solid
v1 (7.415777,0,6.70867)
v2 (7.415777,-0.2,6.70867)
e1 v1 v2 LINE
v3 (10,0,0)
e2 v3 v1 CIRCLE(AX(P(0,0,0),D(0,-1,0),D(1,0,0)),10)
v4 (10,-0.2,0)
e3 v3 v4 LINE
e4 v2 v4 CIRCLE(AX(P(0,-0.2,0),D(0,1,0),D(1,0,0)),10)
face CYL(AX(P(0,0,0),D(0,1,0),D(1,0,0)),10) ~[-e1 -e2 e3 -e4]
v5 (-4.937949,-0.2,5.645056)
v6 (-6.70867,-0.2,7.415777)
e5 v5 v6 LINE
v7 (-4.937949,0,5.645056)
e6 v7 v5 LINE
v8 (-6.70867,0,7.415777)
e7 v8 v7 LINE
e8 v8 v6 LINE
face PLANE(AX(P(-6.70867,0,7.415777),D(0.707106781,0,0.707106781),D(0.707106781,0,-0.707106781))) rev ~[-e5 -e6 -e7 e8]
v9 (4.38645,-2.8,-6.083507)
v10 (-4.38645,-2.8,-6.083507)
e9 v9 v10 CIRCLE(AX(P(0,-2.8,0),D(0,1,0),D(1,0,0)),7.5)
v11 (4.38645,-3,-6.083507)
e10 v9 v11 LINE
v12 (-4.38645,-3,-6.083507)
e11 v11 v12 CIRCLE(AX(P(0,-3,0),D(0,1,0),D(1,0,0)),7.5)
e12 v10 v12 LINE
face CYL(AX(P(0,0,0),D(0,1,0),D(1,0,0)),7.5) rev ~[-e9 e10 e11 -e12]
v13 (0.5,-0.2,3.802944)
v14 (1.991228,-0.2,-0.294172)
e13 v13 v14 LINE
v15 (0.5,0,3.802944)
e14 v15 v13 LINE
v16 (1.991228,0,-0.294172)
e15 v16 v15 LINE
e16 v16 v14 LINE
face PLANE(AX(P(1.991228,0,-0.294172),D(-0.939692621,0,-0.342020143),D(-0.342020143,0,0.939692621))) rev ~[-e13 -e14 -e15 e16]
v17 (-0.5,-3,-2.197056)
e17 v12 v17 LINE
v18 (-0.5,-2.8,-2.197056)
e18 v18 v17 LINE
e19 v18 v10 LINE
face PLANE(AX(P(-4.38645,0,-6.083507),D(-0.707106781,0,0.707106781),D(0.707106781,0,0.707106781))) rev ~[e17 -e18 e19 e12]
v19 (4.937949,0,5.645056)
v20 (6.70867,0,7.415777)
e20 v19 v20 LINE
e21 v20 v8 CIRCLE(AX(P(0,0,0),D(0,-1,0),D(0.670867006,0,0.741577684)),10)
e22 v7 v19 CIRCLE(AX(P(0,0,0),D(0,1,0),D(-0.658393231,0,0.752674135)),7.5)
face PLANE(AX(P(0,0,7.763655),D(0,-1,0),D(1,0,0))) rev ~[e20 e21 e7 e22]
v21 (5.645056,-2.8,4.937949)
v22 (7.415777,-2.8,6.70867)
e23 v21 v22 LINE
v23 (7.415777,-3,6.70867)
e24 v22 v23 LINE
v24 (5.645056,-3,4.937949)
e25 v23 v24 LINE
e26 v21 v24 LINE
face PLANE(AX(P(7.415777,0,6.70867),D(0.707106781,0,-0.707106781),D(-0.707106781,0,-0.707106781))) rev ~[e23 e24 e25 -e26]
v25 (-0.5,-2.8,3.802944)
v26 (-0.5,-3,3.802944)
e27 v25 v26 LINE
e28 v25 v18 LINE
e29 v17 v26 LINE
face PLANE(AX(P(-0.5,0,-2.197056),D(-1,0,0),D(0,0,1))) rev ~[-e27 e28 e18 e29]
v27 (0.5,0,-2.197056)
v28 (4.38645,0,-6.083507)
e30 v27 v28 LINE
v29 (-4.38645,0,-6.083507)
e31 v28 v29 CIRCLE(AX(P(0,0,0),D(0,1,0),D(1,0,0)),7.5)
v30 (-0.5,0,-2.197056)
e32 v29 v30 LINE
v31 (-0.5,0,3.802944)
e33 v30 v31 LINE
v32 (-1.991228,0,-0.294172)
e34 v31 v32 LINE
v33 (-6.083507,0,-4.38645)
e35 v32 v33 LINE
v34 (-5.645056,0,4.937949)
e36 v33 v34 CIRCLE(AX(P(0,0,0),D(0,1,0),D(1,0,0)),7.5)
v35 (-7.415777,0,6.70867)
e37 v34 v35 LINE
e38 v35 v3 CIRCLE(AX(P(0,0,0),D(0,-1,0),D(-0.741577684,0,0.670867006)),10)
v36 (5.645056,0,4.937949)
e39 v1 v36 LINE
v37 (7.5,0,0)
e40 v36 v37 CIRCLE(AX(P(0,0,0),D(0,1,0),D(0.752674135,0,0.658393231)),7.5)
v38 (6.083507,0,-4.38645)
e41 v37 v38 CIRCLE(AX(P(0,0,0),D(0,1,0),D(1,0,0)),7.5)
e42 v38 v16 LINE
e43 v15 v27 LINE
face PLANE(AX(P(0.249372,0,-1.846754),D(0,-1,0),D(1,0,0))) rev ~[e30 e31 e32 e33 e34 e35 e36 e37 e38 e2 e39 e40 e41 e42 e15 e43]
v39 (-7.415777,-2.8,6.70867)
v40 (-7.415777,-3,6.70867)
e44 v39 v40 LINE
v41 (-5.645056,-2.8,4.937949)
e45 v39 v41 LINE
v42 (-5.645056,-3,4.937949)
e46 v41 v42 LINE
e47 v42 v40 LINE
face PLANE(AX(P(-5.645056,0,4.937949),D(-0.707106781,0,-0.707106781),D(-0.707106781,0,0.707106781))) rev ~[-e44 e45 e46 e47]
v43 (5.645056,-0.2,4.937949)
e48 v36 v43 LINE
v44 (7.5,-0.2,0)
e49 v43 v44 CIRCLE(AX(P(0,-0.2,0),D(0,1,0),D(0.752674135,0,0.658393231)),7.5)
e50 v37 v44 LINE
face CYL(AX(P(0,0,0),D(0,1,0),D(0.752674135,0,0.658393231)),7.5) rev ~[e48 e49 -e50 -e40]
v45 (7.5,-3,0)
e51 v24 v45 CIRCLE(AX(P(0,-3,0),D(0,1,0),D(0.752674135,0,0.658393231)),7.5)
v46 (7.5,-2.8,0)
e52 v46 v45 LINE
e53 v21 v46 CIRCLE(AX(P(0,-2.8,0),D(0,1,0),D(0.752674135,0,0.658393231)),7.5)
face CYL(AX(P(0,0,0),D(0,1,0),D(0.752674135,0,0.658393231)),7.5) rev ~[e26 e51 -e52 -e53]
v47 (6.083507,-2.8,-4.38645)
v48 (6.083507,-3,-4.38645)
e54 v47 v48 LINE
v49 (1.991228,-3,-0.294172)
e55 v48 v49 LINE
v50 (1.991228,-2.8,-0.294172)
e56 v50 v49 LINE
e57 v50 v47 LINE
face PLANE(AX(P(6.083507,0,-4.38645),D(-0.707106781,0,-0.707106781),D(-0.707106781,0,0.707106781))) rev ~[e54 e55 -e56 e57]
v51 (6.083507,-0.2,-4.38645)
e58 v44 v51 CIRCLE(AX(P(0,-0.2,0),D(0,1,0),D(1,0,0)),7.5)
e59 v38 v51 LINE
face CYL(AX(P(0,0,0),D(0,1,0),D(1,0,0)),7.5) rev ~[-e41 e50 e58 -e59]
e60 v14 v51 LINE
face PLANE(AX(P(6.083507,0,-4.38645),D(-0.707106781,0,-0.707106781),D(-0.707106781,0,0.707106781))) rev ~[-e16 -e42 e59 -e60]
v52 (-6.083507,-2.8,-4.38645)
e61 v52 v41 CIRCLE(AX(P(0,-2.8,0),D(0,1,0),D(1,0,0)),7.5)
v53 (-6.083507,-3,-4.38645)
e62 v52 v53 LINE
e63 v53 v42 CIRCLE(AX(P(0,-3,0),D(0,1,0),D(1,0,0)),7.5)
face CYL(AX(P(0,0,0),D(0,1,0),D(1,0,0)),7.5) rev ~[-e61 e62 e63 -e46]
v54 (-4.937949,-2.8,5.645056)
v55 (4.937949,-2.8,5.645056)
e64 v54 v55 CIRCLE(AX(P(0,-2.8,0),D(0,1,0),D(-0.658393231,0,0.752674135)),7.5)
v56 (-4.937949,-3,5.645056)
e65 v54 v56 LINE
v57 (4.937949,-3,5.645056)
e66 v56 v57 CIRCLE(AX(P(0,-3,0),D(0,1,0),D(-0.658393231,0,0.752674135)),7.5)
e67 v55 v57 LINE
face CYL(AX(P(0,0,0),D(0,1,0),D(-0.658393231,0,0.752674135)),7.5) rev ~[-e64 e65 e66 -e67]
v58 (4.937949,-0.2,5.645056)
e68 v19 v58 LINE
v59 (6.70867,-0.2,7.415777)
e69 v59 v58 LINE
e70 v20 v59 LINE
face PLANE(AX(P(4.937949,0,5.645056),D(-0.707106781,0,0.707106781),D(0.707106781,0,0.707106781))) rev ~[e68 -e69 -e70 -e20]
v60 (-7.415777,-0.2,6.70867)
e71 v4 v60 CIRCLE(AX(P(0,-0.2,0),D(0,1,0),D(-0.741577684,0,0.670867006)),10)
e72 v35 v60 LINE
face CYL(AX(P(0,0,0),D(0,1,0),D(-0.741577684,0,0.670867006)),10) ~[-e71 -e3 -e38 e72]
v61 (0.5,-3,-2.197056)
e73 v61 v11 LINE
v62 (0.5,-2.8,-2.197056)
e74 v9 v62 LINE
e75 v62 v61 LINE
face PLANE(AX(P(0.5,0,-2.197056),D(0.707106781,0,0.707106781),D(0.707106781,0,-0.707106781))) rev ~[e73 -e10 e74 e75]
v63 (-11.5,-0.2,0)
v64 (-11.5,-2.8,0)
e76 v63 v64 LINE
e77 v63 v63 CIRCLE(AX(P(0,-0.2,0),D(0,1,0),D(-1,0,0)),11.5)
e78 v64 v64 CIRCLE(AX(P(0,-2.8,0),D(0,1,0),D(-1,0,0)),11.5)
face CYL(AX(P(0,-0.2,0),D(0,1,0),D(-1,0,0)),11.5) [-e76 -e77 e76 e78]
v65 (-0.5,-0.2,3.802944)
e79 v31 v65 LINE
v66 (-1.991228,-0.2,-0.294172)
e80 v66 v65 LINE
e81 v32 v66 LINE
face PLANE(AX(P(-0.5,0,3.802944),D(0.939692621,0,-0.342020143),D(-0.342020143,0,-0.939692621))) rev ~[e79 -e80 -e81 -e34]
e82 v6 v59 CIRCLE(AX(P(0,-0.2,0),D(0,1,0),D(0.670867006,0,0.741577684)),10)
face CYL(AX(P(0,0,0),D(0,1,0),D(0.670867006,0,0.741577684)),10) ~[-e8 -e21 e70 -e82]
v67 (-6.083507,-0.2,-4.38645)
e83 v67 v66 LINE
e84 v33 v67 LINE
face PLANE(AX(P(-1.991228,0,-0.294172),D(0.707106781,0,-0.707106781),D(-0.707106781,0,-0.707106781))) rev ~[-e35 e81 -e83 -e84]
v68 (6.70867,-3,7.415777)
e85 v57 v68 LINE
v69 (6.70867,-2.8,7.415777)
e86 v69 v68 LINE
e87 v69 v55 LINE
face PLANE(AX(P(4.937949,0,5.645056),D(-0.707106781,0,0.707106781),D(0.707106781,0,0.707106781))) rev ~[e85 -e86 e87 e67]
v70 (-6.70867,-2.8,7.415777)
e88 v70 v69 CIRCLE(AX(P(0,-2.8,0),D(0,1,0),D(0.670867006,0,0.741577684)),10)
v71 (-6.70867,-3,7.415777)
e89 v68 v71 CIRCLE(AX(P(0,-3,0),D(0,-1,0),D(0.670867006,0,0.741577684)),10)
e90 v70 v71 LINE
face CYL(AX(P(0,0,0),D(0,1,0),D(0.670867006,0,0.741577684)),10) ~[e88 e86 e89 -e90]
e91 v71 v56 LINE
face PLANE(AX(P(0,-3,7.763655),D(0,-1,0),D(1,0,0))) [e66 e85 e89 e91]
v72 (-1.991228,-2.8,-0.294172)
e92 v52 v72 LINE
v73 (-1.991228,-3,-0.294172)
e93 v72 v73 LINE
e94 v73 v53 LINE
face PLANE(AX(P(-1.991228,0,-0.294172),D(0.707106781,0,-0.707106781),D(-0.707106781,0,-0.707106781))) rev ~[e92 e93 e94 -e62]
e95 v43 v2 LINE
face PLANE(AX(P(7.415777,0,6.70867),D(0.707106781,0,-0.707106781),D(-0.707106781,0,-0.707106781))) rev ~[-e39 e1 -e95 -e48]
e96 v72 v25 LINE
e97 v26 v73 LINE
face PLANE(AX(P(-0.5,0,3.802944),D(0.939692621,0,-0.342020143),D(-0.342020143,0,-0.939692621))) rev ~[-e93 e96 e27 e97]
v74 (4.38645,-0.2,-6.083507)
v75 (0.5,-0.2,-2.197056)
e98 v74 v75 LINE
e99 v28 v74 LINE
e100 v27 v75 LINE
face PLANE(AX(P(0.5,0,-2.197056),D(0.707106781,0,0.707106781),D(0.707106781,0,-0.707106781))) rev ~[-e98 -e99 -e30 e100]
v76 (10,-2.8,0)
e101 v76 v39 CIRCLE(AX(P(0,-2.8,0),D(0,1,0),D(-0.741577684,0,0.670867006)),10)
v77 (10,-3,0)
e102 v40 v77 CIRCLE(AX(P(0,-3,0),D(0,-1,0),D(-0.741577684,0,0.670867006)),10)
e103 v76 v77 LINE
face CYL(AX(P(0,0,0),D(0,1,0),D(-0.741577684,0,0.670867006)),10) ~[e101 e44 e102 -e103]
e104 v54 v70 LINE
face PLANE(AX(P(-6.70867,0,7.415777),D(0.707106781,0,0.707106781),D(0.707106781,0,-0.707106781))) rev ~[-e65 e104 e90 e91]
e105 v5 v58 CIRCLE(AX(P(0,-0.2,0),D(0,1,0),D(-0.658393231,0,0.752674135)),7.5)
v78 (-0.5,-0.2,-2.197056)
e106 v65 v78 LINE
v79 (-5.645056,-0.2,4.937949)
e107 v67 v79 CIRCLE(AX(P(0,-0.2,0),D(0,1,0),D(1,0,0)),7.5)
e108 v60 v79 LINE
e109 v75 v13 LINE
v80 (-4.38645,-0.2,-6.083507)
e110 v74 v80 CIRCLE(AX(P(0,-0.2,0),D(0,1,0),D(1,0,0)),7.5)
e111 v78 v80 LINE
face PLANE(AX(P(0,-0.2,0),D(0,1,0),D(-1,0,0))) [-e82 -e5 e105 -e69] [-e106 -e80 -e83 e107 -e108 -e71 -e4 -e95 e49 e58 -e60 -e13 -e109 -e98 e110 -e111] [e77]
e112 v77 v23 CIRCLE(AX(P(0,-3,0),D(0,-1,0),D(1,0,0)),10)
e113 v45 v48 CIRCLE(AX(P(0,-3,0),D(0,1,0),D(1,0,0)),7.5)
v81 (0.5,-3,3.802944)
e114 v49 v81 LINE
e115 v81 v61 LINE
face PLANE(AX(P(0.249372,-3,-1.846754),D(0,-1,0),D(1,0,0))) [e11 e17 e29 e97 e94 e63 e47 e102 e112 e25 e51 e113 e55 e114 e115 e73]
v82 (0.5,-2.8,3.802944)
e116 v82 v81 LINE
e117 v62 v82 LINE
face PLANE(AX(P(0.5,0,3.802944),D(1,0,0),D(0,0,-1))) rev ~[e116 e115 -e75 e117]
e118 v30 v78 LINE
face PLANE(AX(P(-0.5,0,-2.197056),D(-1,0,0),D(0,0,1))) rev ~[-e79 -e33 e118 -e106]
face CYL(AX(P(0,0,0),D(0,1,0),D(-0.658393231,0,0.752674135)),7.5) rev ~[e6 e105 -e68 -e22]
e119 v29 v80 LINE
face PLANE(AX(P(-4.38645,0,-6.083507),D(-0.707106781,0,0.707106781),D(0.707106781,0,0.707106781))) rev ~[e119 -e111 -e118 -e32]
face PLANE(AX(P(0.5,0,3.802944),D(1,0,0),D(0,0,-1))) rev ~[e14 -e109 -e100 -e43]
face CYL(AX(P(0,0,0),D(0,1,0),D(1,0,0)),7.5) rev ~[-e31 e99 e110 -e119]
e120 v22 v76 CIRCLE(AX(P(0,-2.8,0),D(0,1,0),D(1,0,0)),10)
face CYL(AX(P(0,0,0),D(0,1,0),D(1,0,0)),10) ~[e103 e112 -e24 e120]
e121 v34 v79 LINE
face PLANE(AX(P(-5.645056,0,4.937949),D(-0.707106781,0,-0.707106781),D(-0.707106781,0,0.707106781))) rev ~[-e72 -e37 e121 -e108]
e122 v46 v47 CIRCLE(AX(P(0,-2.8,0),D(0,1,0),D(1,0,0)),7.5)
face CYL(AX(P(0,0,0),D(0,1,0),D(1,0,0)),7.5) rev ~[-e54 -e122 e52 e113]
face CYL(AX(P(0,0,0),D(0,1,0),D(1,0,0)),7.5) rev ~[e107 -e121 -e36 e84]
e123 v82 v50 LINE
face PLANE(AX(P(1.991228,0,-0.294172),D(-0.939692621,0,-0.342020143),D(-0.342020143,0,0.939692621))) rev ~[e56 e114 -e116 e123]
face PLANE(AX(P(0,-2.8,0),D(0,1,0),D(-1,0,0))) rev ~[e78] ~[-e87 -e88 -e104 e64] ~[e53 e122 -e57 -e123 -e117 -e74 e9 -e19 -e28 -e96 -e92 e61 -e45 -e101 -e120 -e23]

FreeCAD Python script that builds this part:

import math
import FreeCAD as App
import Part
import Sketcher

V = App.Vector
Q = App.Units.Quantity

doc = App.newDocument("Part")
params = doc.addObject("Spreadsheet::Sheet", "Params")
for row, (alias, value) in enumerate([
    ("sketch1_radius", "10 mm"),
    ("sketch1_radius2", "7.5 mm"),
    ("pad1_length", "3 mm"),
    ("sketch2_radius", "7.5 mm"),
    ("sketch2_height", "6 mm"),
    ("pad2_length", "3 mm"),
    ("sketch3_radius", "10 mm"),
    ("sketch3_radius2", "7.5 mm"),
    ("pad3_length", "3 mm"),
    ("sketch4_diameter", "23 mm"),
    ("pad4_length", "2.6 mm"),
], start=1):
    params.set(f"A{row}", alias)
    params.set(f"B{row}", "=" + value)
    params.setAlias(f"B{row}", alias)

body = doc.addObject("PartDesign::Body", "Body")

# Sketch on XZ plane
sketch1 = body.newObject("Sketcher::SketchObject", "Sketch")
sketch1.AttachmentSupport = (doc.getObject("XZ_Plane"), [""])
sketch1.MapMode = "FlatFace"
sketch1.addGeometry(Part.ArcOfCircle(Part.Circle(V(0, 0, 0), V(0, 0, 1), 10), math.radians(138), math.radians(360)), False)
sketch1.addGeometry(Part.ArcOfCircle(Part.Circle(V(0, 0, 0), V(0, 0, 1), 10), math.radians(0), math.radians(42)), False)
sketch1.addGeometry(Part.LineSegment(V(7.4, 6.7, 0), V(5.6, 4.9, 0)), False)
sketch1.addGeometry(Part.ArcOfCircle(Part.Circle(V(0, 0, 0), V(0, 0, 1), 7.5), math.radians(0), math.radians(41)), False)
sketch1.addGeometry(Part.ArcOfCircle(Part.Circle(V(0, 0, 0), V(0, 0, 1), 7.5), math.radians(139), math.radians(360)), False)
sketch1.addGeometry(Part.LineSegment(V(-5.6, 4.9, 0), V(-7.4, 6.7, 0)), False)
sketch1.addConstraint(Sketcher.Constraint("Tangent", 0, 2, 1, 1))
sketch1.addConstraint(Sketcher.Constraint("Coincident", 1, 2, 2, 1))
sketch1.addConstraint(Sketcher.Constraint("Coincident", 2, 2, 3, 2))
sketch1.addConstraint(Sketcher.Constraint("Tangent", 3, 1, 4, 2))
sketch1.addConstraint(Sketcher.Constraint("Coincident", 4, 1, 5, 1))
sketch1.addConstraint(Sketcher.Constraint("Coincident", 5, 2, 0, 1))
sketch1.addConstraint(Sketcher.Constraint("Coincident", 0, 3, -1, 1))
sketch1.addConstraint(Sketcher.Constraint("Coincident", 3, 3, -1, 1))
sketch1.addConstraint(Sketcher.Constraint("Equal", 0, 1))
sketch1.addConstraint(Sketcher.Constraint("Equal", 3, 4))
sketch1.addConstraint(Sketcher.Constraint("PointOnObject", 0, 2, -1))
sketch1.addConstraint(Sketcher.Constraint("PointOnObject", 3, 1, -1))
sketch1.addConstraint(Sketcher.Constraint("Perpendicular", 2, 5))
sketch1.addConstraint(Sketcher.Constraint("Horizontal", 2, 2, 4, 1))
sketch1.addConstraint(Sketcher.Constraint("Horizontal", 1, 2, 5, 2))
sketch1.addConstraint(Sketcher.Constraint("Radius", 0, Q("10 mm")))
sketch1.addConstraint(Sketcher.Constraint("Radius", 3, Q("7.5 mm")))
sketch1.addConstraint(Sketcher.Constraint("DistanceY", -1, 1, 1, 2, Q("6.70867 mm")))
sketch1.setExpression("Constraints[15]", "Params.sketch1_radius")
sketch1.setExpression("Constraints[16]", "Params.sketch1_radius2")
pad1 = body.newObject("PartDesign::Pad", "Pad")
pad1.Profile = sketch1
pad1.setExpression("Length", "Params.pad1_length")

# Sketch on XZ plane
sketch2 = body.newObject("Sketcher::SketchObject", "Sketch001")
sketch2.AttachmentSupport = (doc.getObject("XZ_Plane"), [""])
sketch2.MapMode = "FlatFace"
sketch2.addGeometry(Part.LineSegment(V(-2, -0.3, 0), V(-6.1, -4.4, 0)), False)
sketch2.addGeometry(Part.ArcOfCircle(Part.Circle(V(0, 0, 0), V(0, 0, 1), 7.5), math.radians(-144.21), math.radians(-135)), False)
sketch2.addGeometry(Part.ArcOfCircle(Part.Circle(V(0, 0, 0), V(0, 0, 1), 7.5), math.radians(-135), math.radians(-125.79)), False)
sketch2.addGeometry(Part.LineSegment(V(-4.4, -6.1, 0), V(-0.5, -2.2, 0)), False)
sketch2.addGeometry(Part.LineSegment(V(-0.5, -2.2, 0), V(-0.5, 3.8, 0)), False)
sketch2.addGeometry(Part.LineSegment(V(-0.5, 3.8, 0), V(-2, -0.3, 0)), False)
sketch2.addGeometry(Part.ArcOfCircle(Part.Circle(V(0, 0, 0), V(0, 0, 1), 7.5), math.radians(-45), math.radians(-35.79)), False)
sketch2.addGeometry(Part.LineSegment(V(6.1, -4.4, 0), V(2, -0.3, 0)), False)
sketch2.addGeometry(Part.LineSegment(V(2, -0.3, 0), V(0.5, 3.8, 0)), False)
sketch2.addGeometry(Part.LineSegment(V(0.5, 3.8, 0), V(0.5, -2.2, 0)), False)
sketch2.addGeometry(Part.LineSegment(V(0.5, -2.2, 0), V(4.4, -6.1, 0)), False)
sketch2.addGeometry(Part.ArcOfCircle(Part.Circle(V(0, 0, 0), V(0, 0, 1), 7.5), math.radians(-54.21), math.radians(-45)), False)
sketch2.addConstraint(Sketcher.Constraint("Coincident", 0, 2, 1, 1))
sketch2.addConstraint(Sketcher.Constraint("Tangent", 1, 2, 2, 1))
sketch2.addConstraint(Sketcher.Constraint("Coincident", 2, 2, 3, 1))
sketch2.addConstraint(Sketcher.Constraint("Coincident", 3, 2, 4, 1))
sketch2.addConstraint(Sketcher.Constraint("Coincident", 4, 2, 5, 1))
sketch2.addConstraint(Sketcher.Constraint("Coincident", 5, 2, 0, 1))
sketch2.addConstraint(Sketcher.Constraint("Coincident", 6, 2, 7, 1))
sketch2.addConstraint(Sketcher.Constraint("Coincident", 7, 2, 8, 1))
sketch2.addConstraint(Sketcher.Constraint("Coincident", 8, 2, 9, 1))
sketch2.addConstraint(Sketcher.Constraint("Coincident", 9, 2, 10, 1))
sketch2.addConstraint(Sketcher.Constraint("Coincident", 10, 2, 11, 1))
sketch2.addConstraint(Sketcher.Constraint("Tangent", 11, 2, 6, 1))
sketch2.addConstraint(Sketcher.Constraint("Vertical", 4))
sketch2.addConstraint(Sketcher.Constraint("Vertical", 9))
sketch2.addConstraint(Sketcher.Constraint("Coincident", 1, 3, -1, 1))
sketch2.addConstraint(Sketcher.Constraint("Coincident", 6, 3, -1, 1))
sketch2.addConstraint(Sketcher.Constraint("Equal", 1, 2))
sketch2.addConstraint(Sketcher.Constraint("Equal", 2, 6))
sketch2.addConstraint(Sketcher.Constraint("Equal", 6, 11))
sketch2.addConstraint(Sketcher.Constraint("Symmetric", 5, 2, 7, 2, -2))
sketch2.addConstraint(Sketcher.Constraint("Symmetric", 4, 2, 8, 2, -2))
sketch2.addConstraint(Sketcher.Constraint("Parallel", 0, 3))
sketch2.addConstraint(Sketcher.Constraint("Perpendicular", 3, 7))
sketch2.addConstraint(Sketcher.Constraint("Parallel", 7, 10))
sketch2.addConstraint(Sketcher.Constraint("Horizontal", 0, 2, 6, 2))
sketch2.addConstraint(Sketcher.Constraint("Horizontal", 3, 2, 9, 2))
sketch2.addConstraint(Sketcher.Constraint("Horizontal", 1, 2, 11, 2))
sketch2.addConstraint(Sketcher.Constraint("Radius", 1, Q("7.5 mm")))
sketch2.addConstraint(Sketcher.Constraint("DistanceY", 4, 1, 4, 2, Q("6 mm")))
sketch2.addConstraint(Sketcher.Constraint("Angle", 5, Q("-110 deg")))
sketch2.addConstraint(Sketcher.Constraint("DistanceX", 4, 2, 8, 2, Q("1 mm")))
sketch2.addConstraint(Sketcher.Constraint("DistanceX", 1, 2, -1, 1, Q("5.303301 mm")))
sketch2.addConstraint(Sketcher.Constraint("Distance", 3, Q("5.496271 mm")))
sketch2.addConstraint(Sketcher.Constraint("Distance", 5, Q("4.360059 mm")))
sketch2.setExpression("Constraints[27]", "Params.sketch2_radius")
sketch2.setExpression("Constraints[28]", "Params.sketch2_height")
pad2 = body.newObject("PartDesign::Pad", "Pad001")
pad2.Profile = sketch2
pad2.setExpression("Length", "Params.pad2_length")
body2 = doc.addObject("PartDesign::Body", "Body001")

# Sketch on XZ plane
sketch3 = body2.newObject("Sketcher::SketchObject", "Sketch002")
sketch3.AttachmentSupport = (doc.getObject("XZ_Plane001"), [""])
sketch3.MapMode = "FlatFace"
sketch3.addGeometry(Part.LineSegment(V(4.9, 5.6, 0), V(6.7, 7.4, 0)), False)
sketch3.addGeometry(Part.ArcOfCircle(Part.Circle(V(0, 0, 0), V(0, 0, 1), 10), math.radians(48), math.radians(132)), False)
sketch3.addGeometry(Part.LineSegment(V(-6.7, 7.4, 0), V(-4.9, 5.6, 0)), False)
sketch3.addGeometry(Part.ArcOfCircle(Part.Circle(V(0, 0, 0), V(0, 0, 1), 7.5), math.radians(49), math.radians(131)), False)
sketch3.addConstraint(Sketcher.Constraint("Coincident", 0, 2, 1, 1))
sketch3.addConstraint(Sketcher.Constraint("Coincident", 1, 2, 2, 1))
sketch3.addConstraint(Sketcher.Constraint("Coincident", 2, 2, 3, 2))
sketch3.addConstraint(Sketcher.Constraint("Coincident", 3, 1, 0, 1))
sketch3.addConstraint(Sketcher.Constraint("Coincident", 1, 3, -1, 1))
sketch3.addConstraint(Sketcher.Constraint("Coincident", 3, 3, -1, 1))
sketch3.addConstraint(Sketcher.Constraint("Perpendicular", 0, 2))
sketch3.addConstraint(Sketcher.Constraint("Horizontal", 0, 2, 1, 2))
sketch3.addConstraint(Sketcher.Constraint("Horizontal", 2, 2, 3, 1))
sketch3.addConstraint(Sketcher.Constraint("Radius", 1, Q("10 mm")))
sketch3.addConstraint(Sketcher.Constraint("Radius", 3, Q("7.5 mm")))
sketch3.addConstraint(Sketcher.Constraint("DistanceX", 2, 2, 3, 1, Q("9.875898 mm")))
sketch3.setExpression("Constraints[9]", "Params.sketch3_radius")
sketch3.setExpression("Constraints[10]", "Params.sketch3_radius2")
pad3 = body2.newObject("PartDesign::Pad", "Pad002")
pad3.Profile = sketch3
pad3.setExpression("Length", "Params.pad3_length")
body.AllowCompound = True
doc.recompute()

boolean = body.newObject("PartDesign::Boolean", "Boolean")
boolean.Type = "Fuse"
boolean.addObjects([body2])

# Sketch on XZ plane
sketch4 = body.newObject("Sketcher::SketchObject", "Sketch003")
sketch4.AttachmentSupport = (doc.getObject("XZ_Plane"), [""])
sketch4.MapMode = "FlatFace"
sketch4.AttachmentOffset = App.Placement(V(0, 0, 0.2), App.Rotation())
sketch4.addGeometry(Part.Circle(V(0, 0, 0), V(0, 0, 1), 12), False)
sketch4.addConstraint(Sketcher.Constraint("Coincident", 0, 3, -1, 1))
sketch4.addConstraint(Sketcher.Constraint("Diameter", 0, Q("23 mm")))
sketch4.setExpression("Constraints[1]", "Params.sketch4_diameter")
pad4 = body.newObject("PartDesign::Pad", "Pad003")
pad4.Profile = sketch4
pad4.setExpression("Length", "Params.pad4_length")

doc.recompute()
